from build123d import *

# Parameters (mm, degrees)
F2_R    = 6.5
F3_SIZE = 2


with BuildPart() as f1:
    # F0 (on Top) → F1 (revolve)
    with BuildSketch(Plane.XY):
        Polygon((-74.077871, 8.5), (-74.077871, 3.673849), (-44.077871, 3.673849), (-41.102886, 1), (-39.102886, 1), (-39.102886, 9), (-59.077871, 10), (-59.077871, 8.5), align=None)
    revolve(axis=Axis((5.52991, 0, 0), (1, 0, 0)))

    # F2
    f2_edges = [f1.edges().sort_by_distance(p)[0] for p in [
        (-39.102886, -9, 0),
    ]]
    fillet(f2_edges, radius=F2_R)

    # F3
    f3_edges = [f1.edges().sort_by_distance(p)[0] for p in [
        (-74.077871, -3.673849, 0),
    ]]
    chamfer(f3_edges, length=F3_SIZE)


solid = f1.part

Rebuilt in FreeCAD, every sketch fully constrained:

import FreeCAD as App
import Part
import Sketcher


def edges_at(feature, points):
    """Names of the edges that pass closest to the given points."""
    edges = feature.Shape.Edges
    near = lambda p: min(range(len(edges)), key=lambda i: edges[i].distToShape(Part.Vertex(*p))[0])
    return sorted({f"Edge{near(p) + 1}" for p in points})


def add_polygon(sketch, points):
    """Adds a closed chain of lines whose ends are joined by coincident constraints."""
    first, n = sketch.GeometryCount, len(points)
    for a, b in zip(points, points[1:] + points[:1]):
        sketch.addGeometry(Part.LineSegment(App.Vector(*a, 0), App.Vector(*b, 0)), False)
    for i in range(n):
        sketch.addConstraint(Sketcher.Constraint("Coincident", first + i, 2, first + (i + 1) % n, 1))

doc = App.newDocument("Part")
body = doc.addObject("PartDesign::Body", "Body")

sketch1 = doc.addObject("Sketcher::SketchObject", "Sketch")
body.addObject(sketch1)
sketch1.AttachmentSupport = (doc.XY_Plane, [""])
sketch1.MapMode = "FlatFace"
add_polygon(sketch1, [(-74.1, 8.5), (-74.1, 3.7), (-44.1, 3.7), (-41.1, 1), (-39.1, 1), (-39.1, 9), (-59.1, 10), (-59.1, 8.5)])
sketch1.addConstraint([
    Sketcher.Constraint("Vertical", 0),
    Sketcher.Constraint("Horizontal", 1),
    Sketcher.Constraint("Horizontal", 3),
    Sketcher.Constraint("Vertical", 4),
    Sketcher.Constraint("Vertical", 6),
    Sketcher.Constraint("Horizontal", 7),
    Sketcher.Constraint("DistanceX", 1, 1, 1, 2, 30.0),
    Sketcher.Constraint("DistanceX", 3, 1, 3, 2, 2.0),
    Sketcher.Constraint("DistanceX", 7, 2, 7, 1, 15.0),
    Sketcher.Constraint("DistanceY", 4, 1, 4, 2, 8.0),
    Sketcher.Constraint("Distance", 2, 4.000001),
    Sketcher.Constraint("Distance", 5, 20.000001),
    Sketcher.Constraint("DistanceY", 6, 2, 6, 1, 1.5),
    Sketcher.Constraint("DistanceY", -1, 1, 2, 2, 1.0),
    Sketcher.Constraint("DistanceY", -1, 1, 5, 2, 10.0),
    Sketcher.Constraint("DistanceX", 0, 2, -1, 1, 74.077871),
])
revolution = doc.addObject("PartDesign::Revolution", "Revolution")
body.addObject(revolution)
revolution.Profile = sketch1
revolution.ReferenceAxis = (sketch1, ["H_Axis"])
revolution.Angle = 360
doc.recompute()

fillet = doc.addObject("PartDesign::Fillet", "Fillet")
body.addObject(fillet)
fillet.Base = (revolution, edges_at(revolution, [(-39.103, -9, 0)]))
fillet.Radius = 6.5
doc.recompute()

chamfer = doc.addObject("PartDesign::Chamfer", "Chamfer")
body.addObject(chamfer)
chamfer.Base = (fillet, edges_at(fillet, [(-74.078, -3.674, 0)]))
chamfer.Size = 2

doc.recompute()
